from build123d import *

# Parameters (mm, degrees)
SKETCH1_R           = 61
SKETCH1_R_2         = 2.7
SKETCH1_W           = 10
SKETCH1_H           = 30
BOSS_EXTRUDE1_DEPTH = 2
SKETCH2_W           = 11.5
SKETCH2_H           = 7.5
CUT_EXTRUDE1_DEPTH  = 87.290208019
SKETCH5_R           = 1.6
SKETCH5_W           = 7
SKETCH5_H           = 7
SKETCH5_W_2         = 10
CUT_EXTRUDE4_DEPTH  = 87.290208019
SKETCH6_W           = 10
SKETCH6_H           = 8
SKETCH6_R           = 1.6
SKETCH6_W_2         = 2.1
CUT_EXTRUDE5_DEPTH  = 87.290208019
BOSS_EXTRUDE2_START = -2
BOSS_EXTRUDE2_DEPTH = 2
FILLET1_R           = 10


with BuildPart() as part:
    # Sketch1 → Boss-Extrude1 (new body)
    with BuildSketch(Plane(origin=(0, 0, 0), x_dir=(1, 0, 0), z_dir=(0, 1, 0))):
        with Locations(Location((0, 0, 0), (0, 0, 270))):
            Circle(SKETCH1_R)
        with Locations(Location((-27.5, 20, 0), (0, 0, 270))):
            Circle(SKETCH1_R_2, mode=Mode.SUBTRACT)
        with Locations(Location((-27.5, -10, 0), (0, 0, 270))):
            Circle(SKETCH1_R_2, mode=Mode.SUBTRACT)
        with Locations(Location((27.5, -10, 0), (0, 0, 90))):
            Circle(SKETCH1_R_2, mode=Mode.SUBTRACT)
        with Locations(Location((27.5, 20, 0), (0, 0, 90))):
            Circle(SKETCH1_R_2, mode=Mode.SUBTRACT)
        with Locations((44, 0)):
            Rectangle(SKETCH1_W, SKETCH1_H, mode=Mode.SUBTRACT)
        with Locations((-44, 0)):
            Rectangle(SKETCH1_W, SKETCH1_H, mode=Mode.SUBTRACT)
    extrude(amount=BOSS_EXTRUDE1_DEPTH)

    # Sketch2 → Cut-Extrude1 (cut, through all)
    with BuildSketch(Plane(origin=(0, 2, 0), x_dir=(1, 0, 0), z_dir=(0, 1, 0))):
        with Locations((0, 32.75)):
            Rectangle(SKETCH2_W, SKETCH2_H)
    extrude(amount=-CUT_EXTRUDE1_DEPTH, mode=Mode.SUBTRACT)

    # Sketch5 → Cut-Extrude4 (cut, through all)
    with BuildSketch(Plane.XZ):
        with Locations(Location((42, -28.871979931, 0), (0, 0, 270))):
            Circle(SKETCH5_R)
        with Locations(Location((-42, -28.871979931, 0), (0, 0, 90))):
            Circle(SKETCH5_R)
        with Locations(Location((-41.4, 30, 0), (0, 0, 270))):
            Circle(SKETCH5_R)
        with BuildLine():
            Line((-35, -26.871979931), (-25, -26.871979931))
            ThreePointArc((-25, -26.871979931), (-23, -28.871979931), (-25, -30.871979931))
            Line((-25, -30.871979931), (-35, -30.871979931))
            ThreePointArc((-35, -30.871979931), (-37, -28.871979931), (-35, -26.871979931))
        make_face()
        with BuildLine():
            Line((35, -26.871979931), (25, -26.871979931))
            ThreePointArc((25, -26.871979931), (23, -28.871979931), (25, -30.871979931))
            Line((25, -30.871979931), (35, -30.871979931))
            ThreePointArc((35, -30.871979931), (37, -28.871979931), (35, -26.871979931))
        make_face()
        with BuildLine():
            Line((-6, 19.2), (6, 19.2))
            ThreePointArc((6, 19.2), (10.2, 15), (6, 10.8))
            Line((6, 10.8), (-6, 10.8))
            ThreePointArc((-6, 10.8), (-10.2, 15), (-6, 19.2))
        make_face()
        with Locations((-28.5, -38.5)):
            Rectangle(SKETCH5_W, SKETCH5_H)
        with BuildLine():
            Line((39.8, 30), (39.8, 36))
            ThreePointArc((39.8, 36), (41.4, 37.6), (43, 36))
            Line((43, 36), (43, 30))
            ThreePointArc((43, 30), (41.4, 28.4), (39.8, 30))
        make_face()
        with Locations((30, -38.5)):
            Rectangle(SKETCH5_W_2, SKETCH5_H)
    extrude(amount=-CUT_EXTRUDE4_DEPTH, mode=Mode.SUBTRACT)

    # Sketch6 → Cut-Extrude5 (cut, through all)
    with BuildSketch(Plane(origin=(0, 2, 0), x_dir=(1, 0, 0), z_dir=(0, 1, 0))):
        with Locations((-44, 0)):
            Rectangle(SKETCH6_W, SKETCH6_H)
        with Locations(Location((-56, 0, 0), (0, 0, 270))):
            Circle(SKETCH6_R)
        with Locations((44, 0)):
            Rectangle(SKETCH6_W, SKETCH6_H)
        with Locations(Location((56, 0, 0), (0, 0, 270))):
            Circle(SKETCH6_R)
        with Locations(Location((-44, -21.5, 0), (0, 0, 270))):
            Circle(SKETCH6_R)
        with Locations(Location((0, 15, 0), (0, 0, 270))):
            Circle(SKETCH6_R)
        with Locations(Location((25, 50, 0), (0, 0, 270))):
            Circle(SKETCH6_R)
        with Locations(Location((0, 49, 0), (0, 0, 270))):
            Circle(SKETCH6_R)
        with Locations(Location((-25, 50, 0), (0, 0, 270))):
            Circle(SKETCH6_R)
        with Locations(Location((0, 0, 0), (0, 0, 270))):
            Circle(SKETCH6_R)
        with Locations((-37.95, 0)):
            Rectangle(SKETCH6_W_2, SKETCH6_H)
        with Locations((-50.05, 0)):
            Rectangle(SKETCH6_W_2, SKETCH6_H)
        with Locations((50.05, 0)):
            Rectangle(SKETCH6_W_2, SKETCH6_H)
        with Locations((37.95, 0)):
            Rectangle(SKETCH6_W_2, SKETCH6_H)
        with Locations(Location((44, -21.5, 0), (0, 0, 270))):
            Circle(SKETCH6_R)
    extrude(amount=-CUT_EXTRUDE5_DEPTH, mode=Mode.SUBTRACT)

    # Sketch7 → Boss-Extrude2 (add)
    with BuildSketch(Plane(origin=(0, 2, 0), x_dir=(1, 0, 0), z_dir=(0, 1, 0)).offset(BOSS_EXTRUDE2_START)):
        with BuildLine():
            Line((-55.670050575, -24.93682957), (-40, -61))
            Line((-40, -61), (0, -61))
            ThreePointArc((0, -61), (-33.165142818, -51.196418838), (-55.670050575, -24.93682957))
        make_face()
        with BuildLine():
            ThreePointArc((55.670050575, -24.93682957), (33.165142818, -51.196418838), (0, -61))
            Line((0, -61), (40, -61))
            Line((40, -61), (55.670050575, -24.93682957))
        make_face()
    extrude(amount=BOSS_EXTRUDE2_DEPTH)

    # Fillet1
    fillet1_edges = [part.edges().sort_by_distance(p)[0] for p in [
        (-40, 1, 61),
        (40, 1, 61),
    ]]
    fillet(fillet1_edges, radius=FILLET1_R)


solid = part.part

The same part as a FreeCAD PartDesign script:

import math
import FreeCAD as App
import Part
import Sketcher
Q = App.Units.Quantity


def edges_at(feature, points):
    """Names of the edges that pass closest to the given points."""
    edges = feature.Shape.Edges
    near = lambda p: min(range(len(edges)), key=lambda i: edges[i].distToShape(Part.Vertex(*p))[0])
    return sorted({f"Edge{near(p) + 1}" for p in points})

doc = App.newDocument("Part")
params = doc.addObject("Spreadsheet::Sheet", "Params")
for row, (alias, value) in enumerate([
    ("sketch1_diameter", "122 mm"),
    ("sketch1_diameter2", "5.4 mm"),
    ("sketch1_width", "10 mm"),
    ("sketch1_height", "30 mm"),
    ("pad1_length", "2 mm"),
    ("sketch2_width", "11.5 mm"),
    ("sketch2_height", "7.5 mm"),
    ("sketch3_radius", "2 mm"),
    ("sketch3_diameter", "3.2 mm"),
    ("sketch3_radius2", "4.2 mm"),
    ("sketch3_width", "10 mm"),
    ("sketch3_width2", "12 mm"),
    ("sketch4_diameter", "3.2 mm"),
    ("sketch4_height", "8 mm"),
    ("sketch4_width", "14.2 mm"),
    ("sketch5_radius", "61 mm"),
    ("sketch5_width", "40 mm"),
    ("pad2_length", "2 mm"),
    ("fillet_radius", "10 mm"),
], start=1):
    params.set(f"A{row}", alias)
    params.set(f"B{row}", "=" + value)
    params.setAlias(f"B{row}", alias)

body = doc.addObject("PartDesign::Body", "Body")

# Sketch on XZ plane
sketch1 = doc.addObject("Sketcher::SketchObject", "Sketch")
body.addObject(sketch1)
sketch1.AttachmentSupport = (doc.XZ_Plane, [""])
sketch1.MapMode = "FlatFace"
sketch1.addGeometry(Part.Circle(App.Vector(0, 0, 0), App.Vector(0, 0, 1), 61), False)
sketch1.addGeometry(Part.Circle(App.Vector(-27.5, -20, 0), App.Vector(0, 0, 1), 2.7), False)
sketch1.addGeometry(Part.LineSegment(App.Vector(-39, 15, 0), App.Vector(-49, 15, 0)), False)
sketch1.addGeometry(Part.LineSegment(App.Vector(-49, 15, 0), App.Vector(-49, -15, 0)), False)
sketch1.addGeometry(Part.LineSegment(App.Vector(-49, -15, 0), App.Vector(-39, -15, 0)), False)
sketch1.addGeometry(Part.LineSegment(App.Vector(-39, -15, 0), App.Vector(-39, 15, 0)), False)
sketch1.addGeometry(Part.Circle(App.Vector(-27.5, 10, 0), App.Vector(0, 0, 1), 2.7), False)
sketch1.addGeometry(Part.Circle(App.Vector(27.5, -20, 0), App.Vector(0, 0, 1), 2.7), False)
sketch1.addGeometry(Part.LineSegment(App.Vector(49, 15, 0), App.Vector(39, 15, 0)), False)
sketch1.addGeometry(Part.LineSegment(App.Vector(39, 15, 0), App.Vector(39, -15, 0)), False)
sketch1.addGeometry(Part.LineSegment(App.Vector(39, -15, 0), App.Vector(49, -15, 0)), False)
sketch1.addGeometry(Part.LineSegment(App.Vector(49, -15, 0), App.Vector(49, 15, 0)), False)
sketch1.addGeometry(Part.Circle(App.Vector(27.5, 10, 0), App.Vector(0, 0, 1), 2.7), False)
sketch1.addConstraint(Sketcher.Constraint("Coincident", 2, 2, 3, 1))
sketch1.addConstraint(Sketcher.Constraint("Coincident", 3, 2, 4, 1))
sketch1.addConstraint(Sketcher.Constraint("Coincident", 4, 2, 5, 1))
sketch1.addConstraint(Sketcher.Constraint("Coincident", 5, 2, 2, 1))
sketch1.addConstraint(Sketcher.Constraint("Coincident", 8, 2, 9, 1))
sketch1.addConstraint(Sketcher.Constraint("Coincident", 9, 2, 10, 1))
sketch1.addConstraint(Sketcher.Constraint("Coincident", 10, 2, 11, 1))
sketch1.addConstraint(Sketcher.Constraint("Coincident", 11, 2, 8, 1))
sketch1.addConstraint(Sketcher.Constraint("Horizontal", 2))
sketch1.addConstraint(Sketcher.Constraint("Vertical", 3))
sketch1.addConstraint(Sketcher.Constraint("Horizontal", 4))
sketch1.addConstraint(Sketcher.Constraint("Vertical", 5))
sketch1.addConstraint(Sketcher.Constraint("Horizontal", 8))
sketch1.addConstraint(Sketcher.Constraint("Vertical", 9))
sketch1.addConstraint(Sketcher.Constraint("Horizontal", 10))
sketch1.addConstraint(Sketcher.Constraint("Vertical", 11))
sketch1.addConstraint(Sketcher.Constraint("Coincident", 0, 3, -1, 1))
sketch1.addConstraint(Sketcher.Constraint("Equal", 1, 6))
sketch1.addConstraint(Sketcher.Constraint("Equal", 6, 7))
sketch1.addConstraint(Sketcher.Constraint("Equal", 7, 12))
sketch1.addConstraint(Sketcher.Constraint("Symmetric", 4, 2, 8, 2, -1, 1))
sketch1.addConstraint(Sketcher.Constraint("Symmetric", 2, 2, 10, 2, -1, 1))
sketch1.addConstraint(Sketcher.Constraint("Symmetric", 1, 3, 7, 3, -2))
sketch1.addConstraint(Sketcher.Constraint("Symmetric", 6, 3, 12, 3, -2))
sketch1.addConstraint(Sketcher.Constraint("Horizontal", 5, 2, 8, 2))
sketch1.addConstraint(Sketcher.Constraint("Vertical", 1, 3, 6, 3))
sketch1.addConstraint(Sketcher.Constraint("Diameter", 0, Q("122 mm")))
sketch1.addConstraint(Sketcher.Constraint("Diameter", 1, Q("5.4 mm")))
sketch1.addConstraint(Sketcher.Constraint("DistanceX", 2, 2, 2, 1, Q("10 mm")))
sketch1.addConstraint(Sketcher.Constraint("DistanceY", 3, 2, 3, 1, Q("30 mm")))
sketch1.addConstraint(Sketcher.Constraint("DistanceY", 1, 3, -1, 1, Q("20 mm")))
sketch1.addConstraint(Sketcher.Constraint("DistanceY", -1, 1, 6, 3, Q("10 mm")))
sketch1.addConstraint(Sketcher.Constraint("DistanceX", 2, 2, -1, 1, Q("49 mm")))
sketch1.addConstraint(Sketcher.Constraint("DistanceX", 1, 3, 7, 3, Q("55 mm")))
sketch1.setExpression("Constraints[26]", "Params.sketch1_diameter")
sketch1.setExpression("Constraints[27]", "Params.sketch1_diameter2")
sketch1.setExpression("Constraints[28]", "Params.sketch1_width")
sketch1.setExpression("Constraints[29]", "Params.sketch1_height")
pad1 = doc.addObject("PartDesign::Pad", "Pad")
body.addObject(pad1)
pad1.Profile = sketch1
pad1.setExpression("Length", "Params.pad1_length")
pad1.Reversed = True

# Sketch on XZ plane
sketch2 = doc.addObject("Sketcher::SketchObject", "Sketch001")
body.addObject(sketch2)
sketch2.AttachmentSupport = (doc.XZ_Plane, [""])
sketch2.MapMode = "FlatFace"
sketch2.AttachmentOffset = App.Placement(App.Vector(0, 0, -2), App.Rotation())
sketch2.addGeometry(Part.LineSegment(App.Vector(-5.75, -36.5, 0), App.Vector(-5.75, -29, 0)), False)
sketch2.addGeometry(Part.LineSegment(App.Vector(-5.75, -29, 0), App.Vector(5.75, -29, 0)), False)
sketch2.addGeometry(Part.LineSegment(App.Vector(5.75, -29, 0), App.Vector(5.75, -36.5, 0)), False)
sketch2.addGeometry(Part.LineSegment(App.Vector(5.75, -36.5, 0), App.Vector(-5.75, -36.5, 0)), False)
sketch2.addConstraint(Sketcher.Constraint("Coincident", 0, 2, 1, 1))
sketch2.addConstraint(Sketcher.Constraint("Coincident", 1, 2, 2, 1))
sketch2.addConstraint(Sketcher.Constraint("Coincident", 2, 2, 3, 1))
sketch2.addConstraint(Sketcher.Constraint("Coincident", 3, 2, 0, 1))
sketch2.addConstraint(Sketcher.Constraint("Vertical", 0))
sketch2.addConstraint(Sketcher.Constraint("Horizontal", 1))
sketch2.addConstraint(Sketcher.Constraint("Vertical", 2))
sketch2.addConstraint(Sketcher.Constraint("Horizontal", 3))
sketch2.addConstraint(Sketcher.Constraint("DistanceX", 1, 1, 1, 2, Q("11.5 mm")))
sketch2.addConstraint(Sketcher.Constraint("DistanceY", 0, 1, 0, 2, Q("7.5 mm")))
sketch2.addConstraint(Sketcher.Constraint("DistanceY", 0, 2, -1, 1, Q("29 mm")))
sketch2.addConstraint(Sketcher.Constraint("DistanceX", 0, 2, -1, 1, Q("5.75 mm")))
sketch2.setExpression("Constraints[8]", "Params.sketch2_width")
sketch2.setExpression("Constraints[9]", "Params.sketch2_height")
pocket1 = doc.addObject("PartDesign::Pocket", "Pocket")
body.addObject(pocket1)
pocket1.Profile = sketch2
pocket1.Type = "ThroughAll"
pocket1.Reversed = True

# Sketch on XZ plane
sketch3 = doc.addObject("Sketcher::SketchObject", "Sketch002")
body.addObject(sketch3)
sketch3.AttachmentSupport = (doc.XZ_Plane, [""])
sketch3.MapMode = "FlatFace"
sketch3.addGeometry(Part.Circle(App.Vector(42, -28.87198, 0), App.Vector(0, 0, 1), 1.6), False)
sketch3.addGeometry(Part.Circle(App.Vector(-42, -28.87198, 0), App.Vector(0, 0, 1), 1.6), False)
sketch3.addGeometry(Part.Circle(App.Vector(-41.4, 30, 0), App.Vector(0, 0, 1), 1.6), False)
sketch3.addGeometry(Part.LineSegment(App.Vector(-25, -26.87198, 0), App.Vector(-35, -26.87198, 0)), False)
sketch3.addGeometry(Part.ArcOfCircle(Part.Circle(App.Vector(-35, -28.87198, 0), App.Vector(0, 0, 1), 2), math.radians(90), math.radians(270)), False)
sketch3.addGeometry(Part.LineSegment(App.Vector(-35, -30.87198, 0), App.Vector(-25, -30.87198, 0)), False)
sketch3.addGeometry(Part.ArcOfCircle(Part.Circle(App.Vector(-25, -28.87198, 0), App.Vector(0, 0, 1), 2), math.radians(-90), math.radians(90)), False)
sketch3.addGeometry(Part.LineSegment(App.Vector(35, -26.87198, 0), App.Vector(25, -26.87198, 0)), False)
sketch3.addGeometry(Part.ArcOfCircle(Part.Circle(App.Vector(25, -28.87198, 0), App.Vector(0, 0, 1), 2), math.radians(90), math.radians(270)), False)
sketch3.addGeometry(Part.LineSegment(App.Vector(25, -30.87198, 0), App.Vector(35, -30.87198, 0)), False)
sketch3.addGeometry(Part.ArcOfCircle(Part.Circle(App.Vector(35, -28.87198, 0), App.Vector(0, 0, 1), 2), math.radians(-90), math.radians(90)), False)
sketch3.addGeometry(Part.LineSegment(App.Vector(6, 19.2, 0), App.Vector(-6, 19.2, 0)), False)
sketch3.addGeometry(Part.ArcOfCircle(Part.Circle(App.Vector(-6, 15, 0), App.Vector(0, 0, 1), 4.2), math.radians(90), math.radians(270)), False)
sketch3.addGeometry(Part.LineSegment(App.Vector(-6, 10.8, 0), App.Vector(6, 10.8, 0)), False)
sketch3.addGeometry(Part.ArcOfCircle(Part.Circle(App.Vector(6, 15, 0), App.Vector(0, 0, 1), 4.2), math.radians(-90), math.radians(90)), False)
sketch3.addGeometry(Part.LineSegment(App.Vector(-32, -35, 0), App.Vector(-32, -42, 0)), False)
sketch3.addGeometry(Part.LineSegment(App.Vector(-32, -42, 0), App.Vector(-25, -42, 0)), False)
sketch3.addGeometry(Part.LineSegment(App.Vector(-25, -42, 0), App.Vector(-25, -35, 0)), False)
sketch3.addGeometry(Part.LineSegment(App.Vector(-25, -35, 0), App.Vector(-32, -35, 0)), False)
sketch3.addGeometry(Part.LineSegment(App.Vector(39.8, 36, 0), App.Vector(39.8, 30, 0)), False)
sketch3.addGeometry(Part.ArcOfCircle(Part.Circle(App.Vector(41.4, 30, 0), App.Vector(0, 0, 1), 1.6), math.radians(180), math.radians(360)), False)
sketch3.addGeometry(Part.LineSegment(App.Vector(43, 30, 0), App.Vector(43, 36, 0)), False)
sketch3.addGeometry(Part.ArcOfCircle(Part.Circle(App.Vector(41.4, 36, 0), App.Vector(0, 0, 1), 1.6), math.radians(0), math.radians(180)), False)
sketch3.addGeometry(Part.LineSegment(App.Vector(25, -35, 0), App.Vector(25, -42, 0)), False)
sketch3.addGeometry(Part.LineSegment(App.Vector(25, -42, 0), App.Vector(35, -42, 0)), False)
sketch3.addGeometry(Part.LineSegment(App.Vector(35, -42, 0), App.Vector(35, -35, 0)), False)
sketch3.addGeometry(Part.LineSegment(App.Vector(35, -35, 0), App.Vector(25, -35, 0)), False)
sketch3.addConstraint(Sketcher.Constraint("Tangent", 3, 2, 4, 1))
sketch3.addConstraint(Sketcher.Constraint("Tangent", 4, 2, 5, 1))
sketch3.addConstraint(Sketcher.Constraint("Tangent", 5, 2, 6, 1))
sketch3.addConstraint(Sketcher.Constraint("Tangent", 6, 2, 3, 1))
sketch3.addConstraint(Sketcher.Constraint("Tangent", 7, 2, 8, 1))
sketch3.addConstraint(Sketcher.Constraint("Tangent", 8, 2, 9, 1))
sketch3.addConstraint(Sketcher.Constraint("Tangent", 9, 2, 10, 1))
sketch3.addConstraint(Sketcher.Constraint("Tangent", 10, 2, 7, 1))
sketch3.addConstraint(Sketcher.Constraint("Tangent", 11, 2, 12, 1))
sketch3.addConstraint(Sketcher.Constraint("Tangent", 12, 2, 13, 1))
sketch3.addConstraint(Sketcher.Constraint("Tangent", 13, 2, 14, 1))
sketch3.addConstraint(Sketcher.Constraint("Tangent", 14, 2, 11, 1))
sketch3.addConstraint(Sketcher.Constraint("Coincident", 15, 2, 16, 1))
sketch3.addConstraint(Sketcher.Constraint("Coincident", 16, 2, 17, 1))
sketch3.addConstraint(Sketcher.Constraint("Coincident", 17, 2, 18, 1))
sketch3.addConstraint(Sketcher.Constraint("Coincident", 18, 2, 15, 1))
sketch3.addConstraint(Sketcher.Constraint("Tangent", 19, 2, 20, 1))
sketch3.addConstraint(Sketcher.Constraint("Tangent", 20, 2, 21, 1))
sketch3.addConstraint(Sketcher.Constraint("Tangent", 21, 2, 22, 1))
sketch3.addConstraint(Sketcher.Constraint("Tangent", 22, 2, 19, 1))
sketch3.addConstraint(Sketcher.Constraint("Coincident", 23, 2, 24, 1))
sketch3.addConstraint(Sketcher.Constraint("Coincident", 24, 2, 25, 1))
sketch3.addConstraint(Sketcher.Constraint("Coincident", 25, 2, 26, 1))
sketch3.addConstraint(Sketcher.Constraint("Coincident", 26, 2, 23, 1))
sketch3.addConstraint(Sketcher.Constraint("Horizontal", 3))
sketch3.addConstraint(Sketcher.Constraint("Horizontal", 5))
sketch3.addConstraint(Sketcher.Constraint("Horizontal", 7))
sketch3.addConstraint(Sketcher.Constraint("Horizontal", 9))
sketch3.addConstraint(Sketcher.Constraint("Horizontal", 11))
sketch3.addConstraint(Sketcher.Constraint("Horizontal", 13))
sketch3.addConstraint(Sketcher.Constraint("Vertical", 15))
sketch3.addConstraint(Sketcher.Constraint("Horizontal", 16))
sketch3.addConstraint(Sketcher.Constraint("Vertical", 17))
sketch3.addConstraint(Sketcher.Constraint("Horizontal", 18))
sketch3.addConstraint(Sketcher.Constraint("Vertical", 19))
sketch3.addConstraint(Sketcher.Constraint("Vertical", 21))
sketch3.addConstraint(Sketcher.Constraint("Vertical", 23))
sketch3.addConstraint(Sketcher.Constraint("Horizontal", 24))
sketch3.addConstraint(Sketcher.Constraint("Vertical", 25))
sketch3.addConstraint(Sketcher.Constraint("Horizontal", 26))
sketch3.addConstraint(Sketcher.Constraint("Equal", 0, 1))
sketch3.addConstraint(Sketcher.Constraint("Equal", 1, 2))
sketch3.addConstraint(Sketcher.Constraint("Equal", 6, 8))
sketch3.addConstraint(Sketcher.Constraint("Equal", 2, 20))
sketch3.addConstraint(Sketcher.Constraint("Symmetric", 0, 3, 1, 3, -2))
sketch3.addConstraint(Sketcher.Constraint("Symmetric", 6, 3, 8, 3, -2))
sketch3.addConstraint(Sketcher.Constraint("Symmetric", 2, 3, 20, 3, -2))
sketch3.addConstraint(Sketcher.Constraint("Symmetric", 16, 2, 23, 2, -2))
sketch3.addConstraint(Sketcher.Constraint("Horizontal", 1, 3, 4, 3))
sketch3.addConstraint(Sketcher.Constraint("Horizontal", 18, 2, 25, 2))
sketch3.addConstraint(Sketcher.Constraint("Vertical", 6, 2, 16, 2))
sketch3.addConstraint(Sketcher.Constraint("Vertical", 10, 2, 24, 2))
sketch3.addConstraint(Sketcher.Constraint("Equal", 5, 7))
sketch3.addConstraint(Sketcher.Constraint("Equal", 18, 15))
sketch3.addConstraint(Sketcher.Constraint("Radius", 4, Q("2 mm")))
sketch3.addConstraint(Sketcher.Constraint("Diameter", 0, Q("3.2 mm")))
sketch3.addConstraint(Sketcher.Constraint("Radius", 12, Q("4.2 mm")))
sketch3.addConstraint(Sketcher.Constraint("DistanceX", 3, 2, 3, 1, Q("10 mm")))
sketch3.addConstraint(Sketcher.Constraint("DistanceX", 11, 2, 11, 1, Q("12 mm")))
sketch3.addConstraint(Sketcher.Constraint("DistanceX", 16, 1, 16, 2, Q("7 mm")))
sketch3.addConstraint(Sketcher.Constraint("DistanceY", 19, 2, 19, 1, Q("6 mm")))
sketch3.addConstraint(Sketcher.Constraint("DistanceX", -1, 1, 0, 3, Q("42 mm")))
sketch3.addConstraint(Sketcher.Constraint("DistanceY", -1, 1, 2, 3, Q("30 mm")))
sketch3.addConstraint(Sketcher.Constraint("DistanceX", 4, 3, -1, 1, Q("35 mm")))
sketch3.addConstraint(Sketcher.Constraint("DistanceX", 12, 3, -1, 1, Q("6 mm")))
sketch3.addConstraint(Sketcher.Constraint("DistanceY", -1, 1, 12, 3, Q("15 mm")))
sketch3.addConstraint(Sketcher.Constraint("DistanceY", 15, 2, -1, 1, Q("42 mm")))
sketch3.addConstraint(Sketcher.Constraint("DistanceX", -1, 1, 20, 2, Q("43 mm")))
sketch3.addConstraint(Sketcher.Constraint("DistanceY", 0, 3, -1, 1, Q("28.87198 mm")))
sketch3.setExpression("Constraints[54]", "Params.sketch3_radius")
sketch3.setExpression("Constraints[55]", "Params.sketch3_diameter")
sketch3.setExpression("Constraints[56]", "Params.sketch3_radius2")
sketch3.setExpression("Constraints[57]", "Params.sketch3_width")
sketch3.setExpression("Constraints[58]", "Params.sketch3_width2")
pocket2 = doc.addObject("PartDesign::Pocket", "Pocket001")
body.addObject(pocket2)
pocket2.Profile = sketch3
pocket2.Type = "ThroughAll"

# Sketch on XZ plane
sketch4 = doc.addObject("Sketcher::SketchObject", "Sketch003")
body.addObject(sketch4)
sketch4.AttachmentSupport = (doc.XZ_Plane, [""])
sketch4.MapMode = "FlatFace"
sketch4.AttachmentOffset = App.Placement(App.Vector(0, 0, -2), App.Rotation())
sketch4.addGeometry(Part.LineSegment(App.Vector(-36.9, 4, 0), App.Vector(-36.9, -4, 0)), False)
sketch4.addGeometry(Part.LineSegment(App.Vector(-36.9, -4, 0), App.Vector(-51.1, -4, 0)), False)
sketch4.addGeometry(Part.LineSegment(App.Vector(-51.1, -4, 0), App.Vector(-51.1, 4, 0)), False)
sketch4.addGeometry(Part.LineSegment(App.Vector(-51.1, 4, 0), App.Vector(-36.9, 4, 0)), False)
sketch4.addGeometry(Part.Circle(App.Vector(-56, 0, 0), App.Vector(0, 0, 1), 1.6), False)
sketch4.addGeometry(Part.LineSegment(App.Vector(51.1, 4, 0), App.Vector(51.1, -4, 0)), False)
sketch4.addGeometry(Part.LineSegment(App.Vector(51.1, -4, 0), App.Vector(36.9, -4, 0)), False)
sketch4.addGeometry(Part.LineSegment(App.Vector(36.9, -4, 0), App.Vector(36.9, 4, 0)), False)
sketch4.addGeometry(Part.LineSegment(App.Vector(36.9, 4, 0), App.Vector(51.1, 4, 0)), False)
sketch4.addGeometry(Part.Circle(App.Vector(56, 0, 0), App.Vector(0, 0, 1), 1.6), False)
sketch4.addGeometry(Part.Circle(App.Vector(-44, 21.5, 0), App.Vector(0, 0, 1), 1.6), False)
sketch4.addGeometry(Part.Circle(App.Vector(0, -15, 0), App.Vector(0, 0, 1), 1.6), False)
sketch4.addGeometry(Part.Circle(App.Vector(25, -50, 0), App.Vector(0, 0, 1), 1.6), False)
sketch4.addGeometry(Part.Circle(App.Vector(0, -49, 0), App.Vector(0, 0, 1), 1.6), False)
sketch4.addGeometry(Part.Circle(App.Vector(-25, -50, 0), App.Vector(0, 0, 1), 1.6), False)
sketch4.addGeometry(Part.Circle(App.Vector(0, 0, 0), App.Vector(0, 0, 1), 1.6), False)
sketch4.addGeometry(Part.Circle(App.Vector(44, 21.5, 0), App.Vector(0, 0, 1), 1.6), False)
sketch4.addConstraint(Sketcher.Constraint("Coincident", 0, 2, 1, 1))
sketch4.addConstraint(Sketcher.Constraint("Coincident", 1, 2, 2, 1))
sketch4.addConstraint(Sketcher.Constraint("Coincident", 2, 2, 3, 1))
sketch4.addConstraint(Sketcher.Constraint("Coincident", 3, 2, 0, 1))
sketch4.addConstraint(Sketcher.Constraint("Coincident", 5, 2, 6, 1))
sketch4.addConstraint(Sketcher.Constraint("Coincident", 6, 2, 7, 1))
sketch4.addConstraint(Sketcher.Constraint("Coincident", 7, 2, 8, 1))
sketch4.addConstraint(Sketcher.Constraint("Coincident", 8, 2, 5, 1))
sketch4.addConstraint(Sketcher.Constraint("Vertical", 0))
sketch4.addConstraint(Sketcher.Constraint("Horizontal", 1))
sketch4.addConstraint(Sketcher.Constraint("Vertical", 2))
sketch4.addConstraint(Sketcher.Constraint("Horizontal", 3))
sketch4.addConstraint(Sketcher.Constraint("Vertical", 5))
sketch4.addConstraint(Sketcher.Constraint("Horizontal", 6))
sketch4.addConstraint(Sketcher.Constraint("Vertical", 7))
sketch4.addConstraint(Sketcher.Constraint("Horizontal", 8))
sketch4.addConstraint(Sketcher.Constraint("Coincident", 15, 3, -1, 1))
sketch4.addConstraint(Sketcher.Constraint("Equal", 4, 9))
sketch4.addConstraint(Sketcher.Constraint("Equal", 9, 10))
sketch4.addConstraint(Sketcher.Constraint("Equal", 10, 11))
sketch4.addConstraint(Sketcher.Constraint("Equal", 11, 12))
sketch4.addConstraint(Sketcher.Constraint("Equal", 12, 13))
sketch4.addConstraint(Sketcher.Constraint("Equal", 13, 14))
sketch4.addConstraint(Sketcher.Constraint("Equal", 14, 15))
sketch4.addConstraint(Sketcher.Constraint("Equal", 15, 16))
sketch4.addConstraint(Sketcher.Constraint("Symmetric", 4, 3, 9, 3, -1, 1))
sketch4.addConstraint(Sketcher.Constraint("Symmetric", 2, 2, 5, 2, -1, 1))
sketch4.addConstraint(Sketcher.Constraint("Symmetric", 0, 2, 7, 2, -1, 1))
sketch4.addConstraint(Sketcher.Constraint("Symmetric", 12, 3, 14, 3, -2))
sketch4.addConstraint(Sketcher.Constraint("Symmetric", 10, 3, 16, 3, -2))
sketch4.addConstraint(Sketcher.Constraint("PointOnObject", 4, 3, -1))
sketch4.addConstraint(Sketcher.Constraint("PointOnObject", 11, 3, -2))
sketch4.addConstraint(Sketcher.Constraint("PointOnObject", 13, 3, -2))
sketch4.addConstraint(Sketcher.Constraint("Horizontal", 1, 2, 5, 2))
sketch4.addConstraint(Sketcher.Constraint("Diameter", 4, Q("3.2 mm")))
sketch4.addConstraint(Sketcher.Constraint("DistanceY", 0, 2, 0, 1, Q("8 mm")))
sketch4.addConstraint(Sketcher.Constraint("DistanceX", 1, 2, 1, 1, Q("14.2 mm")))
sketch4.addConstraint(Sketcher.Constraint("DistanceX", 4, 3, -1, 1, Q("56 mm")))
sketch4.addConstraint(Sketcher.Constraint("DistanceX", 10, 3, -1, 1, Q("44 mm")))
sketch4.addConstraint(Sketcher.Constraint("DistanceY", 11, 3, -1, 1, Q("15 mm")))
sketch4.addConstraint(Sketcher.Constraint("DistanceX", -1, 1, 12, 3, Q("25 mm")))
sketch4.addConstraint(Sketcher.Constraint("DistanceY", 12, 3, -1, 1, Q("50 mm")))
sketch4.addConstraint(Sketcher.Constraint("DistanceY", 13, 3, -1, 1, Q("49 mm")))
sketch4.addConstraint(Sketcher.Constraint("DistanceY", -1, 1, 10, 3, Q("21.5 mm")))
sketch4.addConstraint(Sketcher.Constraint("DistanceX", 0, 2, -1, 1, Q("36.9 mm")))
sketch4.setExpression("Constraints[34]", "Params.sketch4_diameter")
sketch4.setExpression("Constraints[35]", "Params.sketch4_height")
sketch4.setExpression("Constraints[36]", "Params.sketch4_width")
pocket3 = doc.addObject("PartDesign::Pocket", "Pocket002")
body.addObject(pocket3)
pocket3.Profile = sketch4
pocket3.Type = "ThroughAll"
pocket3.Reversed = True

# Sketch on XZ plane
sketch5 = doc.addObject("Sketcher::SketchObject", "Sketch004")
body.addObject(sketch5)
sketch5.AttachmentSupport = (doc.XZ_Plane, [""])
sketch5.MapMode = "FlatFace"
sketch5.addGeometry(Part.LineSegment(App.Vector(-55.670051, 24.93683, 0), App.Vector(-40, 61, 0)), False)
sketch5.addGeometry(Part.LineSegment(App.Vector(-40, 61, 0), App.Vector(0, 61, 0)), False)
sketch5.addGeometry(Part.ArcOfCircle(Part.Circle(App.Vector(0, 0, 0), App.Vector(0, 0, 1), 61), math.radians(90), math.radians(155.870495)), False)
sketch5.addGeometry(Part.ArcOfCircle(Part.Circle(App.Vector(0, 0, 0), App.Vector(0, 0, 1), 61), math.radians(24.129505), math.radians(90)), False)
sketch5.addGeometry(Part.LineSegment(App.Vector(0, 61, 0), App.Vector(40, 61, 0)), False)
sketch5.addGeometry(Part.LineSegment(App.Vector(40, 61, 0), App.Vector(55.670051, 24.93683, 0)), False)
sketch5.addConstraint(Sketcher.Constraint("Coincident", 0, 2, 1, 1))
sketch5.addConstraint(Sketcher.Constraint("Tangent", 1, 2, 2, 1))
sketch5.addConstraint(Sketcher.Constraint("Coincident", 2, 2, 0, 1))
sketch5.addConstraint(Sketcher.Constraint("Tangent", 3, 2, 4, 1))
sketch5.addConstraint(Sketcher.Constraint("Coincident", 4, 2, 5, 1))
sketch5.addConstraint(Sketcher.Constraint("Coincident", 5, 2, 3, 1))
sketch5.addConstraint(Sketcher.Constraint("Horizontal", 1))
sketch5.addConstraint(Sketcher.Constraint("Horizontal", 4))
sketch5.addConstraint(Sketcher.Constraint("Coincident", 2, 3, -1, 1))
sketch5.addConstraint(Sketcher.Constraint("Coincident", 3, 3, -1, 1))
sketch5.addConstraint(Sketcher.Constraint("Equal", 2, 3))
sketch5.addConstraint(Sketcher.Constraint("Horizontal", 2, 2, 5, 2))
sketch5.addConstraint(Sketcher.Constraint("Equal", 1, 4))
sketch5.addConstraint(Sketcher.Constraint("Radius", 2, Q("61 mm")))
sketch5.addConstraint(Sketcher.Constraint("DistanceX", 1, 1, 1, 2, Q("40 mm")))
sketch5.addConstraint(Sketcher.Constraint("DistanceX", 2, 2, -1, 1, Q("55.670051 mm")))
sketch5.setExpression("Constraints[13]", "Params.sketch5_radius")
sketch5.setExpression("Constraints[14]", "Params.sketch5_width")
pad2 = doc.addObject("PartDesign::Pad", "Pad001")
body.addObject(pad2)
pad2.Profile = sketch5
pad2.setExpression("Length", "Params.pad2_length")
pad2.Reversed = True
doc.recompute()

fillet = doc.addObject("PartDesign::Fillet", "Fillet")
body.addObject(fillet)
fillet.Base = (pad2, edges_at(pad2, [(-40, 1, 61), (40, 1, 61)]))
fillet.setExpression("Radius", "Params.fillet_radius")

doc.recompute()
